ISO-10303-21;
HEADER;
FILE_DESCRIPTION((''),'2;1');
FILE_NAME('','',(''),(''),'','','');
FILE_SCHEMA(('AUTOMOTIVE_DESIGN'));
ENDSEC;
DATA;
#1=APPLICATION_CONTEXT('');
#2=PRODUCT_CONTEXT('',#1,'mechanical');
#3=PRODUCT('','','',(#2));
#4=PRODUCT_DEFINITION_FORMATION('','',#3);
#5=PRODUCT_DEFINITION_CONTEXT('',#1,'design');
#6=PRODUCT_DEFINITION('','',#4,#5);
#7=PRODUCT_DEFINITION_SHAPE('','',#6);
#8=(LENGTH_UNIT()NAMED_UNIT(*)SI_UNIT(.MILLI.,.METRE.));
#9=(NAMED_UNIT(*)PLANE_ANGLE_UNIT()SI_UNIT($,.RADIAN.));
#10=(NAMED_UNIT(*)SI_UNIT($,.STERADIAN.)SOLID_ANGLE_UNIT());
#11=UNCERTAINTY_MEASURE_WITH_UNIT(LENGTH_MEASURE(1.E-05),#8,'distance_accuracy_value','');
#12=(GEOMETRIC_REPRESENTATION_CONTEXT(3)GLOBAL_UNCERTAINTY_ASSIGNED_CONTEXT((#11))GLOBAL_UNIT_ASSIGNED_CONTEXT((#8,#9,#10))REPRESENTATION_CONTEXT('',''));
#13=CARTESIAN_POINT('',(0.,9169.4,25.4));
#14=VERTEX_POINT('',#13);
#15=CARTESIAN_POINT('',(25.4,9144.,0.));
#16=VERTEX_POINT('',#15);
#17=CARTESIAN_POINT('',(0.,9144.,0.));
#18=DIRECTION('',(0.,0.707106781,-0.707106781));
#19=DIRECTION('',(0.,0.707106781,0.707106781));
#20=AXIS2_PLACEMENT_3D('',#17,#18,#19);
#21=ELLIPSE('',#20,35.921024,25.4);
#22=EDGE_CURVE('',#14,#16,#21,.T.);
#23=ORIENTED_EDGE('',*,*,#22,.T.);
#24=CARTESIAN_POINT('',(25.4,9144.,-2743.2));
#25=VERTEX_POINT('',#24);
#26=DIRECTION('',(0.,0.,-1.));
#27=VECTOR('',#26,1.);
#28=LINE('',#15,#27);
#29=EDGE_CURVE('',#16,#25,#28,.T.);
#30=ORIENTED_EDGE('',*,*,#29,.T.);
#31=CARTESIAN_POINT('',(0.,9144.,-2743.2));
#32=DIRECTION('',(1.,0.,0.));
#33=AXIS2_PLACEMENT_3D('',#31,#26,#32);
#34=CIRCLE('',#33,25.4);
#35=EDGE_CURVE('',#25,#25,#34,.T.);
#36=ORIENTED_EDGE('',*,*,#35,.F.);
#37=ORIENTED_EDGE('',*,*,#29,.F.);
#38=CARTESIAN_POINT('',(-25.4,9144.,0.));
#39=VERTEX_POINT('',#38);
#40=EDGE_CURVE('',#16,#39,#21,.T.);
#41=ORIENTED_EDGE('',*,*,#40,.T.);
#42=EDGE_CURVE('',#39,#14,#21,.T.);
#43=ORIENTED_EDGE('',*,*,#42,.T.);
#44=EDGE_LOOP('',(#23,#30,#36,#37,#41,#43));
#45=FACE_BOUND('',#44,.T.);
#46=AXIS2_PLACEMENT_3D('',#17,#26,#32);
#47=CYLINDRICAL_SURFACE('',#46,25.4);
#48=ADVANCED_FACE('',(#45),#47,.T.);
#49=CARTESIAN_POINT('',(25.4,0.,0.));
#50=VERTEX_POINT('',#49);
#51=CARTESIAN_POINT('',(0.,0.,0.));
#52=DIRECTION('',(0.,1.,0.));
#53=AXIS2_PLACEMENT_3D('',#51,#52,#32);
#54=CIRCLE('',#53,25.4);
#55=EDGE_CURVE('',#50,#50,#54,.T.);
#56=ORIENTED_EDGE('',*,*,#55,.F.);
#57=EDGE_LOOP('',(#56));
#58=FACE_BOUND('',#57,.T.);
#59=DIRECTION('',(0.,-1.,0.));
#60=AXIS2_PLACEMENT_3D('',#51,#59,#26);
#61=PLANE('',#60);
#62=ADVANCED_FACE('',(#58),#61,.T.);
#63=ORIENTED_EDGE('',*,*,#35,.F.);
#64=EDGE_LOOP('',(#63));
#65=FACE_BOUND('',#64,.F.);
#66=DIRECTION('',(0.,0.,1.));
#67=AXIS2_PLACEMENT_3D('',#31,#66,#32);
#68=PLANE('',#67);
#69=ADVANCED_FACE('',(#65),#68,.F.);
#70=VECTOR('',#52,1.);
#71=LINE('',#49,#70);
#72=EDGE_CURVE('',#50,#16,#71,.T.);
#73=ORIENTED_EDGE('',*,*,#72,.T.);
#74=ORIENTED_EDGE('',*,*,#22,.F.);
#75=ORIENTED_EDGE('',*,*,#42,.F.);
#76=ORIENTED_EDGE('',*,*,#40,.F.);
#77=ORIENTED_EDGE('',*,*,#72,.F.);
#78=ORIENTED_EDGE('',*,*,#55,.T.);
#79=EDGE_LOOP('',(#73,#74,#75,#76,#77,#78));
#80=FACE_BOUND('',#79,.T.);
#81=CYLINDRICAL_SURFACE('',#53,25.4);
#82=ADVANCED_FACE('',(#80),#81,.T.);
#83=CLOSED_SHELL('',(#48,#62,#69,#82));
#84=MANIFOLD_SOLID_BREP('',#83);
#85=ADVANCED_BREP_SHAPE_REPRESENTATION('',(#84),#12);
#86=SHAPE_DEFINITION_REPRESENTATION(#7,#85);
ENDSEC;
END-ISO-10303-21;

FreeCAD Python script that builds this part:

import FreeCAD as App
import Part
import Sketcher
from FreeCAD import Vector
Q = App.Units.Quantity

doc = App.newDocument("Part")
params = doc.addObject("Spreadsheet::Sheet", "Params")
for row, (alias, value) in enumerate([
    ("sketch1_diameter", "2 in"),
    ("sketch2_width", "360 in"),
    ("sketch2_height", "108 in"),
], start=1):
    params.set(f"A{row}", alias)
    params.set(f"B{row}", "=" + value)
    params.setAlias(f"B{row}", alias)

body = doc.addObject("PartDesign::Body", "Body")

sketch1 = body.newObject("Sketcher::SketchObject", "Sketch")
sketch1.AttachmentSupport = (doc.getObject("XZ_Plane"), [""])
sketch1.MapMode = "FlatFace"
sketch1.addGeometry(Part.Circle(Vector(0, 0, 0), Vector(0, 0, 1), 25), False)
sketch1.addConstraint([
    Sketcher.Constraint("Coincident", 0, 3, -1, 1),
    Sketcher.Constraint("Diameter", 0, Q("2 in")),
])
sketch1.setExpression("Constraints[1]", "Params.sketch1_diameter")

sketch2 = body.newObject("Sketcher::SketchObject", "Sketch001")
sketch2.AttachmentSupport = (doc.getObject("YZ_Plane"), [""])
sketch2.MapMode = "FlatFace"
sketch2.addGeometry([
    Part.LineSegment(Vector(0, 0, 0), Vector(9144, 0, 0)),
    Part.LineSegment(Vector(9144, 0, 0), Vector(9144, -2743, 0)),
], False)
sketch2.addConstraint([
    Sketcher.Constraint("Coincident", 0, 2, 1, 1),
    Sketcher.Constraint("Horizontal", 0),
    Sketcher.Constraint("Vertical", 1),
    Sketcher.Constraint("Coincident", 0, 1, -1, 1),
    Sketcher.Constraint("DistanceX", 0, 1, 0, 2, Q("360 in")),
    Sketcher.Constraint("DistanceY", 1, 2, 1, 1, Q("108 in")),
])
sketch2.setExpression("Constraints[4]", "Params.sketch2_width")
sketch2.setExpression("Constraints[5]", "Params.sketch2_height")
doc.recompute()

additivepipe = body.newObject("PartDesign::AdditivePipe", "AdditivePipe")
additivepipe.Profile = sketch1
additivepipe.Spine = (sketch2, ["Edge1", "Edge2"])
additivepipe.Transition = "Right corner"

doc.recompute()
